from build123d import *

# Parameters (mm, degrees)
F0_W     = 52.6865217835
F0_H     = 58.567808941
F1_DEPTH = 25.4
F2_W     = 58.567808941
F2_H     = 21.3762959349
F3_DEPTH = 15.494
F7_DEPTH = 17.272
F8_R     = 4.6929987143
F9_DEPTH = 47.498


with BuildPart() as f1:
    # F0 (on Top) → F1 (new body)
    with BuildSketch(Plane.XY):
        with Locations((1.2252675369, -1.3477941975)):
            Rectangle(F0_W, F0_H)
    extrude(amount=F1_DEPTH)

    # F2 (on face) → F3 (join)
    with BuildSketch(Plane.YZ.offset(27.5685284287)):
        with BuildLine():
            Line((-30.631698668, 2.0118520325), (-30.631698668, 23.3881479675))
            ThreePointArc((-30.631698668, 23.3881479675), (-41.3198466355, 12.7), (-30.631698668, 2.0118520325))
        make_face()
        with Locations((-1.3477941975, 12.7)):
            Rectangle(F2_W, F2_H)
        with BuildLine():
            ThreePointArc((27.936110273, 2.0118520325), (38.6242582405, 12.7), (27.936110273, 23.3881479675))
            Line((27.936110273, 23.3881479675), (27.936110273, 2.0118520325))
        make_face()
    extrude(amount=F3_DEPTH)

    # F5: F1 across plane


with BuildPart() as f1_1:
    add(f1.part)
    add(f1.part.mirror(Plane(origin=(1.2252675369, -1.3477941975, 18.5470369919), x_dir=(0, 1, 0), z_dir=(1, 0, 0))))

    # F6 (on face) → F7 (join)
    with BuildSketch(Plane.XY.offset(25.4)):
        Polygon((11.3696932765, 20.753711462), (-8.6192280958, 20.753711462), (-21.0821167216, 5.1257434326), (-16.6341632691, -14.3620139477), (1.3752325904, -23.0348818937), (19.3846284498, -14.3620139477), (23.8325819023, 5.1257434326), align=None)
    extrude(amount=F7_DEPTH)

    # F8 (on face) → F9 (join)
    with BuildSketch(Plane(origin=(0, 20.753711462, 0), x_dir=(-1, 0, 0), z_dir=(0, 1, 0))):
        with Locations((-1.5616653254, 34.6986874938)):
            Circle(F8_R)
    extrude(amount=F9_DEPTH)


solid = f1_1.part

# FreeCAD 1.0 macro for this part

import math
import FreeCAD as App
import Part
import Sketcher
from FreeCAD import Vector
Q = App.Units.Quantity


def add_polygon(sketch, points):
    """Adds a closed chain of lines whose ends are joined by coincident constraints."""
    first, n = sketch.GeometryCount, len(points)
    for a, b in zip(points, points[1:] + points[:1]):
        sketch.addGeometry(Part.LineSegment(App.Vector(*a, 0), App.Vector(*b, 0)), False)
    for i in range(n):
        sketch.addConstraint(Sketcher.Constraint("Coincident", first + i, 2, first + (i + 1) % n, 1))

doc = App.newDocument("Part")
body = doc.addObject("PartDesign::Body", "Body")

sketch1 = doc.addObject("Sketcher::SketchObject", "Sketch")
body.addObject(sketch1)
sketch1.AttachmentSupport = (doc.XY_Plane, [""])
sketch1.MapMode = "FlatFace"
add_polygon(sketch1, [(-25, 28), (-25, -31), (28, -31), (28, 28)])
sketch1.addConstraint([
    Sketcher.Constraint("Vertical", 0),
    Sketcher.Constraint("Horizontal", 1),
    Sketcher.Constraint("Vertical", 2),
    Sketcher.Constraint("Horizontal", 3),
    Sketcher.Constraint("DistanceX", 1, 1, 1, 2, Q("52.686522 mm")),
    Sketcher.Constraint("DistanceY", 0, 2, 0, 1, Q("58.567809 mm")),
    Sketcher.Constraint("DistanceY", 0, 2, -1, 1, Q("30.631699 mm")),
    Sketcher.Constraint("DistanceX", -1, 1, 1, 2, Q("27.568528 mm")),
])
pad1 = doc.addObject("PartDesign::Pad", "Pad")
body.addObject(pad1)
pad1.Profile = sketch1
pad1.Length = Q("1 in")

sketch2 = doc.addObject("Sketcher::SketchObject", "Sketch001")
body.addObject(sketch2)
sketch2.AttachmentSupport = (doc.YZ_Plane, [""])
sketch2.MapMode = "FlatFace"
sketch2.AttachmentOffset = App.Placement(Vector(0, 0, 27.568528), App.Rotation())
sketch2.addGeometry([
    Part.ArcOfCircle(Part.Circle(Vector(-31, 13, 0), Vector(0, 0, 1), 11), math.radians(90), math.radians(270)),
    Part.LineSegment(Vector(-31, 2, 0), Vector(28, 2, 0)),
    Part.ArcOfCircle(Part.Circle(Vector(28, 13, 0), Vector(0, 0, 1), 11), math.radians(-90), math.radians(90)),
    Part.LineSegment(Vector(28, 23, 0), Vector(-31, 23, 0)),
], False)
sketch2.addConstraint([
    Sketcher.Constraint("Tangent", 0, 2, 1, 1),
    Sketcher.Constraint("Tangent", 1, 2, 2, 1),
    Sketcher.Constraint("Tangent", 2, 2, 3, 1),
    Sketcher.Constraint("Tangent", 3, 2, 0, 1),
    Sketcher.Constraint("Horizontal", 1),
    Sketcher.Constraint("Horizontal", 3),
    Sketcher.Constraint("DistanceY", -1, 1, 0, 3, Q("0.5 in")),
    Sketcher.Constraint("Radius", 0, Q("10.688148 mm")),
    Sketcher.Constraint("DistanceX", 1, 1, 1, 2, Q("58.567809 mm")),
    Sketcher.Constraint("DistanceX", 0, 3, -1, 1, Q("30.631699 mm")),
])
pad2 = doc.addObject("PartDesign::Pad", "Pad001")
body.addObject(pad2)
pad2.Profile = sketch2
pad2.Length = Q("0.61 in")
body2 = doc.addObject("PartDesign::Body", "Body001")
doc.recompute()

body2.BaseFeature = body
doc.recompute()

mirroring = doc.addObject("Part::Mirroring", "Mirroring")
mirroring.Source = body
mirroring.Base = Vector(1.225268, -1.347794, 18.547037)
mirroring.Normal = Vector(1, 0, 0)
body3 = doc.addObject("PartDesign::Body", "Body002")
body3.BaseFeature = mirroring
boolean = doc.addObject("PartDesign::Boolean", "Boolean")
body2.addObject(boolean)
boolean.Type = "Fuse"
boolean.addObjects([body3])
doc.recompute()

sketch3 = doc.addObject("Sketcher::SketchObject", "Sketch002")
body2.addObject(sketch3)
sketch3.AttachmentSupport = (doc.getObject("XY_Plane001"), [""])
sketch3.MapMode = "FlatFace"
sketch3.AttachmentOffset = App.Placement(Vector(0, 0, 1 * 25.4), App.Rotation())
add_polygon(sketch3, [(11, 21), (-9, 21), (-21, 5), (-17, -14), (1, -23), (19, -14), (24, 5)])
sketch3.addConstraint([
    Sketcher.Constraint("Horizontal", 0),
    Sketcher.Constraint("Horizontal", 2, 2, 4, 2),
    Sketcher.Constraint("Horizontal", 1, 2, 5, 2),
    Sketcher.Constraint("Equal", 1, 2),
    Sketcher.Constraint("Equal", 2, 3),
    Sketcher.Constraint("Equal", 3, 4),
    Sketcher.Constraint("Equal", 4, 5),
    Sketcher.Constraint("Equal", 5, 6),
    Sketcher.Constraint("DistanceX", 0, 2, 0, 1, Q("19.988921 mm")),
    Sketcher.Constraint("DistanceX", 1, 2, 5, 2, Q("44.914699 mm")),
    Sketcher.Constraint("Distance", 1, Q("19.988921 mm")),
    Sketcher.Constraint("DistanceX", 0, 2, -1, 1, Q("8.619228 mm")),
    Sketcher.Constraint("DistanceY", -1, 1, 0, 2, Q("20.753711 mm")),
    Sketcher.Constraint("DistanceY", 3, 2, -1, 1, Q("23.034882 mm")),
])
pad3 = doc.addObject("PartDesign::Pad", "Pad002")
body2.addObject(pad3)
pad3.Profile = sketch3
pad3.Length = Q("0.68 in")

sketch4 = doc.addObject("Sketcher::SketchObject", "Sketch003")
body2.addObject(sketch4)
sketch4.AttachmentSupport = (doc.getObject("XZ_Plane001"), [""])
sketch4.MapMode = "FlatFace"
sketch4.AttachmentOffset = App.Placement(Vector(0, 0, -20.753711), App.Rotation())
sketch4.addGeometry(Part.Circle(Vector(1.6, 34.7, 0), Vector(0, 0, 1), 4.7), False)
sketch4.addConstraint([
    Sketcher.Constraint("Diameter", 0, Q("9.385997 mm")),
    Sketcher.Constraint("DistanceX", -1, 1, 0, 3, Q("1.561665 mm")),
    Sketcher.Constraint("DistanceY", -1, 1, 0, 3, Q("34.698687 mm")),
])
pad4 = doc.addObject("PartDesign::Pad", "Pad003")
body2.addObject(pad4)
pad4.Profile = sketch4
pad4.Length = Q("1.87 in")
pad4.Reversed = True
mirroring.Visibility = False

doc.recompute()
